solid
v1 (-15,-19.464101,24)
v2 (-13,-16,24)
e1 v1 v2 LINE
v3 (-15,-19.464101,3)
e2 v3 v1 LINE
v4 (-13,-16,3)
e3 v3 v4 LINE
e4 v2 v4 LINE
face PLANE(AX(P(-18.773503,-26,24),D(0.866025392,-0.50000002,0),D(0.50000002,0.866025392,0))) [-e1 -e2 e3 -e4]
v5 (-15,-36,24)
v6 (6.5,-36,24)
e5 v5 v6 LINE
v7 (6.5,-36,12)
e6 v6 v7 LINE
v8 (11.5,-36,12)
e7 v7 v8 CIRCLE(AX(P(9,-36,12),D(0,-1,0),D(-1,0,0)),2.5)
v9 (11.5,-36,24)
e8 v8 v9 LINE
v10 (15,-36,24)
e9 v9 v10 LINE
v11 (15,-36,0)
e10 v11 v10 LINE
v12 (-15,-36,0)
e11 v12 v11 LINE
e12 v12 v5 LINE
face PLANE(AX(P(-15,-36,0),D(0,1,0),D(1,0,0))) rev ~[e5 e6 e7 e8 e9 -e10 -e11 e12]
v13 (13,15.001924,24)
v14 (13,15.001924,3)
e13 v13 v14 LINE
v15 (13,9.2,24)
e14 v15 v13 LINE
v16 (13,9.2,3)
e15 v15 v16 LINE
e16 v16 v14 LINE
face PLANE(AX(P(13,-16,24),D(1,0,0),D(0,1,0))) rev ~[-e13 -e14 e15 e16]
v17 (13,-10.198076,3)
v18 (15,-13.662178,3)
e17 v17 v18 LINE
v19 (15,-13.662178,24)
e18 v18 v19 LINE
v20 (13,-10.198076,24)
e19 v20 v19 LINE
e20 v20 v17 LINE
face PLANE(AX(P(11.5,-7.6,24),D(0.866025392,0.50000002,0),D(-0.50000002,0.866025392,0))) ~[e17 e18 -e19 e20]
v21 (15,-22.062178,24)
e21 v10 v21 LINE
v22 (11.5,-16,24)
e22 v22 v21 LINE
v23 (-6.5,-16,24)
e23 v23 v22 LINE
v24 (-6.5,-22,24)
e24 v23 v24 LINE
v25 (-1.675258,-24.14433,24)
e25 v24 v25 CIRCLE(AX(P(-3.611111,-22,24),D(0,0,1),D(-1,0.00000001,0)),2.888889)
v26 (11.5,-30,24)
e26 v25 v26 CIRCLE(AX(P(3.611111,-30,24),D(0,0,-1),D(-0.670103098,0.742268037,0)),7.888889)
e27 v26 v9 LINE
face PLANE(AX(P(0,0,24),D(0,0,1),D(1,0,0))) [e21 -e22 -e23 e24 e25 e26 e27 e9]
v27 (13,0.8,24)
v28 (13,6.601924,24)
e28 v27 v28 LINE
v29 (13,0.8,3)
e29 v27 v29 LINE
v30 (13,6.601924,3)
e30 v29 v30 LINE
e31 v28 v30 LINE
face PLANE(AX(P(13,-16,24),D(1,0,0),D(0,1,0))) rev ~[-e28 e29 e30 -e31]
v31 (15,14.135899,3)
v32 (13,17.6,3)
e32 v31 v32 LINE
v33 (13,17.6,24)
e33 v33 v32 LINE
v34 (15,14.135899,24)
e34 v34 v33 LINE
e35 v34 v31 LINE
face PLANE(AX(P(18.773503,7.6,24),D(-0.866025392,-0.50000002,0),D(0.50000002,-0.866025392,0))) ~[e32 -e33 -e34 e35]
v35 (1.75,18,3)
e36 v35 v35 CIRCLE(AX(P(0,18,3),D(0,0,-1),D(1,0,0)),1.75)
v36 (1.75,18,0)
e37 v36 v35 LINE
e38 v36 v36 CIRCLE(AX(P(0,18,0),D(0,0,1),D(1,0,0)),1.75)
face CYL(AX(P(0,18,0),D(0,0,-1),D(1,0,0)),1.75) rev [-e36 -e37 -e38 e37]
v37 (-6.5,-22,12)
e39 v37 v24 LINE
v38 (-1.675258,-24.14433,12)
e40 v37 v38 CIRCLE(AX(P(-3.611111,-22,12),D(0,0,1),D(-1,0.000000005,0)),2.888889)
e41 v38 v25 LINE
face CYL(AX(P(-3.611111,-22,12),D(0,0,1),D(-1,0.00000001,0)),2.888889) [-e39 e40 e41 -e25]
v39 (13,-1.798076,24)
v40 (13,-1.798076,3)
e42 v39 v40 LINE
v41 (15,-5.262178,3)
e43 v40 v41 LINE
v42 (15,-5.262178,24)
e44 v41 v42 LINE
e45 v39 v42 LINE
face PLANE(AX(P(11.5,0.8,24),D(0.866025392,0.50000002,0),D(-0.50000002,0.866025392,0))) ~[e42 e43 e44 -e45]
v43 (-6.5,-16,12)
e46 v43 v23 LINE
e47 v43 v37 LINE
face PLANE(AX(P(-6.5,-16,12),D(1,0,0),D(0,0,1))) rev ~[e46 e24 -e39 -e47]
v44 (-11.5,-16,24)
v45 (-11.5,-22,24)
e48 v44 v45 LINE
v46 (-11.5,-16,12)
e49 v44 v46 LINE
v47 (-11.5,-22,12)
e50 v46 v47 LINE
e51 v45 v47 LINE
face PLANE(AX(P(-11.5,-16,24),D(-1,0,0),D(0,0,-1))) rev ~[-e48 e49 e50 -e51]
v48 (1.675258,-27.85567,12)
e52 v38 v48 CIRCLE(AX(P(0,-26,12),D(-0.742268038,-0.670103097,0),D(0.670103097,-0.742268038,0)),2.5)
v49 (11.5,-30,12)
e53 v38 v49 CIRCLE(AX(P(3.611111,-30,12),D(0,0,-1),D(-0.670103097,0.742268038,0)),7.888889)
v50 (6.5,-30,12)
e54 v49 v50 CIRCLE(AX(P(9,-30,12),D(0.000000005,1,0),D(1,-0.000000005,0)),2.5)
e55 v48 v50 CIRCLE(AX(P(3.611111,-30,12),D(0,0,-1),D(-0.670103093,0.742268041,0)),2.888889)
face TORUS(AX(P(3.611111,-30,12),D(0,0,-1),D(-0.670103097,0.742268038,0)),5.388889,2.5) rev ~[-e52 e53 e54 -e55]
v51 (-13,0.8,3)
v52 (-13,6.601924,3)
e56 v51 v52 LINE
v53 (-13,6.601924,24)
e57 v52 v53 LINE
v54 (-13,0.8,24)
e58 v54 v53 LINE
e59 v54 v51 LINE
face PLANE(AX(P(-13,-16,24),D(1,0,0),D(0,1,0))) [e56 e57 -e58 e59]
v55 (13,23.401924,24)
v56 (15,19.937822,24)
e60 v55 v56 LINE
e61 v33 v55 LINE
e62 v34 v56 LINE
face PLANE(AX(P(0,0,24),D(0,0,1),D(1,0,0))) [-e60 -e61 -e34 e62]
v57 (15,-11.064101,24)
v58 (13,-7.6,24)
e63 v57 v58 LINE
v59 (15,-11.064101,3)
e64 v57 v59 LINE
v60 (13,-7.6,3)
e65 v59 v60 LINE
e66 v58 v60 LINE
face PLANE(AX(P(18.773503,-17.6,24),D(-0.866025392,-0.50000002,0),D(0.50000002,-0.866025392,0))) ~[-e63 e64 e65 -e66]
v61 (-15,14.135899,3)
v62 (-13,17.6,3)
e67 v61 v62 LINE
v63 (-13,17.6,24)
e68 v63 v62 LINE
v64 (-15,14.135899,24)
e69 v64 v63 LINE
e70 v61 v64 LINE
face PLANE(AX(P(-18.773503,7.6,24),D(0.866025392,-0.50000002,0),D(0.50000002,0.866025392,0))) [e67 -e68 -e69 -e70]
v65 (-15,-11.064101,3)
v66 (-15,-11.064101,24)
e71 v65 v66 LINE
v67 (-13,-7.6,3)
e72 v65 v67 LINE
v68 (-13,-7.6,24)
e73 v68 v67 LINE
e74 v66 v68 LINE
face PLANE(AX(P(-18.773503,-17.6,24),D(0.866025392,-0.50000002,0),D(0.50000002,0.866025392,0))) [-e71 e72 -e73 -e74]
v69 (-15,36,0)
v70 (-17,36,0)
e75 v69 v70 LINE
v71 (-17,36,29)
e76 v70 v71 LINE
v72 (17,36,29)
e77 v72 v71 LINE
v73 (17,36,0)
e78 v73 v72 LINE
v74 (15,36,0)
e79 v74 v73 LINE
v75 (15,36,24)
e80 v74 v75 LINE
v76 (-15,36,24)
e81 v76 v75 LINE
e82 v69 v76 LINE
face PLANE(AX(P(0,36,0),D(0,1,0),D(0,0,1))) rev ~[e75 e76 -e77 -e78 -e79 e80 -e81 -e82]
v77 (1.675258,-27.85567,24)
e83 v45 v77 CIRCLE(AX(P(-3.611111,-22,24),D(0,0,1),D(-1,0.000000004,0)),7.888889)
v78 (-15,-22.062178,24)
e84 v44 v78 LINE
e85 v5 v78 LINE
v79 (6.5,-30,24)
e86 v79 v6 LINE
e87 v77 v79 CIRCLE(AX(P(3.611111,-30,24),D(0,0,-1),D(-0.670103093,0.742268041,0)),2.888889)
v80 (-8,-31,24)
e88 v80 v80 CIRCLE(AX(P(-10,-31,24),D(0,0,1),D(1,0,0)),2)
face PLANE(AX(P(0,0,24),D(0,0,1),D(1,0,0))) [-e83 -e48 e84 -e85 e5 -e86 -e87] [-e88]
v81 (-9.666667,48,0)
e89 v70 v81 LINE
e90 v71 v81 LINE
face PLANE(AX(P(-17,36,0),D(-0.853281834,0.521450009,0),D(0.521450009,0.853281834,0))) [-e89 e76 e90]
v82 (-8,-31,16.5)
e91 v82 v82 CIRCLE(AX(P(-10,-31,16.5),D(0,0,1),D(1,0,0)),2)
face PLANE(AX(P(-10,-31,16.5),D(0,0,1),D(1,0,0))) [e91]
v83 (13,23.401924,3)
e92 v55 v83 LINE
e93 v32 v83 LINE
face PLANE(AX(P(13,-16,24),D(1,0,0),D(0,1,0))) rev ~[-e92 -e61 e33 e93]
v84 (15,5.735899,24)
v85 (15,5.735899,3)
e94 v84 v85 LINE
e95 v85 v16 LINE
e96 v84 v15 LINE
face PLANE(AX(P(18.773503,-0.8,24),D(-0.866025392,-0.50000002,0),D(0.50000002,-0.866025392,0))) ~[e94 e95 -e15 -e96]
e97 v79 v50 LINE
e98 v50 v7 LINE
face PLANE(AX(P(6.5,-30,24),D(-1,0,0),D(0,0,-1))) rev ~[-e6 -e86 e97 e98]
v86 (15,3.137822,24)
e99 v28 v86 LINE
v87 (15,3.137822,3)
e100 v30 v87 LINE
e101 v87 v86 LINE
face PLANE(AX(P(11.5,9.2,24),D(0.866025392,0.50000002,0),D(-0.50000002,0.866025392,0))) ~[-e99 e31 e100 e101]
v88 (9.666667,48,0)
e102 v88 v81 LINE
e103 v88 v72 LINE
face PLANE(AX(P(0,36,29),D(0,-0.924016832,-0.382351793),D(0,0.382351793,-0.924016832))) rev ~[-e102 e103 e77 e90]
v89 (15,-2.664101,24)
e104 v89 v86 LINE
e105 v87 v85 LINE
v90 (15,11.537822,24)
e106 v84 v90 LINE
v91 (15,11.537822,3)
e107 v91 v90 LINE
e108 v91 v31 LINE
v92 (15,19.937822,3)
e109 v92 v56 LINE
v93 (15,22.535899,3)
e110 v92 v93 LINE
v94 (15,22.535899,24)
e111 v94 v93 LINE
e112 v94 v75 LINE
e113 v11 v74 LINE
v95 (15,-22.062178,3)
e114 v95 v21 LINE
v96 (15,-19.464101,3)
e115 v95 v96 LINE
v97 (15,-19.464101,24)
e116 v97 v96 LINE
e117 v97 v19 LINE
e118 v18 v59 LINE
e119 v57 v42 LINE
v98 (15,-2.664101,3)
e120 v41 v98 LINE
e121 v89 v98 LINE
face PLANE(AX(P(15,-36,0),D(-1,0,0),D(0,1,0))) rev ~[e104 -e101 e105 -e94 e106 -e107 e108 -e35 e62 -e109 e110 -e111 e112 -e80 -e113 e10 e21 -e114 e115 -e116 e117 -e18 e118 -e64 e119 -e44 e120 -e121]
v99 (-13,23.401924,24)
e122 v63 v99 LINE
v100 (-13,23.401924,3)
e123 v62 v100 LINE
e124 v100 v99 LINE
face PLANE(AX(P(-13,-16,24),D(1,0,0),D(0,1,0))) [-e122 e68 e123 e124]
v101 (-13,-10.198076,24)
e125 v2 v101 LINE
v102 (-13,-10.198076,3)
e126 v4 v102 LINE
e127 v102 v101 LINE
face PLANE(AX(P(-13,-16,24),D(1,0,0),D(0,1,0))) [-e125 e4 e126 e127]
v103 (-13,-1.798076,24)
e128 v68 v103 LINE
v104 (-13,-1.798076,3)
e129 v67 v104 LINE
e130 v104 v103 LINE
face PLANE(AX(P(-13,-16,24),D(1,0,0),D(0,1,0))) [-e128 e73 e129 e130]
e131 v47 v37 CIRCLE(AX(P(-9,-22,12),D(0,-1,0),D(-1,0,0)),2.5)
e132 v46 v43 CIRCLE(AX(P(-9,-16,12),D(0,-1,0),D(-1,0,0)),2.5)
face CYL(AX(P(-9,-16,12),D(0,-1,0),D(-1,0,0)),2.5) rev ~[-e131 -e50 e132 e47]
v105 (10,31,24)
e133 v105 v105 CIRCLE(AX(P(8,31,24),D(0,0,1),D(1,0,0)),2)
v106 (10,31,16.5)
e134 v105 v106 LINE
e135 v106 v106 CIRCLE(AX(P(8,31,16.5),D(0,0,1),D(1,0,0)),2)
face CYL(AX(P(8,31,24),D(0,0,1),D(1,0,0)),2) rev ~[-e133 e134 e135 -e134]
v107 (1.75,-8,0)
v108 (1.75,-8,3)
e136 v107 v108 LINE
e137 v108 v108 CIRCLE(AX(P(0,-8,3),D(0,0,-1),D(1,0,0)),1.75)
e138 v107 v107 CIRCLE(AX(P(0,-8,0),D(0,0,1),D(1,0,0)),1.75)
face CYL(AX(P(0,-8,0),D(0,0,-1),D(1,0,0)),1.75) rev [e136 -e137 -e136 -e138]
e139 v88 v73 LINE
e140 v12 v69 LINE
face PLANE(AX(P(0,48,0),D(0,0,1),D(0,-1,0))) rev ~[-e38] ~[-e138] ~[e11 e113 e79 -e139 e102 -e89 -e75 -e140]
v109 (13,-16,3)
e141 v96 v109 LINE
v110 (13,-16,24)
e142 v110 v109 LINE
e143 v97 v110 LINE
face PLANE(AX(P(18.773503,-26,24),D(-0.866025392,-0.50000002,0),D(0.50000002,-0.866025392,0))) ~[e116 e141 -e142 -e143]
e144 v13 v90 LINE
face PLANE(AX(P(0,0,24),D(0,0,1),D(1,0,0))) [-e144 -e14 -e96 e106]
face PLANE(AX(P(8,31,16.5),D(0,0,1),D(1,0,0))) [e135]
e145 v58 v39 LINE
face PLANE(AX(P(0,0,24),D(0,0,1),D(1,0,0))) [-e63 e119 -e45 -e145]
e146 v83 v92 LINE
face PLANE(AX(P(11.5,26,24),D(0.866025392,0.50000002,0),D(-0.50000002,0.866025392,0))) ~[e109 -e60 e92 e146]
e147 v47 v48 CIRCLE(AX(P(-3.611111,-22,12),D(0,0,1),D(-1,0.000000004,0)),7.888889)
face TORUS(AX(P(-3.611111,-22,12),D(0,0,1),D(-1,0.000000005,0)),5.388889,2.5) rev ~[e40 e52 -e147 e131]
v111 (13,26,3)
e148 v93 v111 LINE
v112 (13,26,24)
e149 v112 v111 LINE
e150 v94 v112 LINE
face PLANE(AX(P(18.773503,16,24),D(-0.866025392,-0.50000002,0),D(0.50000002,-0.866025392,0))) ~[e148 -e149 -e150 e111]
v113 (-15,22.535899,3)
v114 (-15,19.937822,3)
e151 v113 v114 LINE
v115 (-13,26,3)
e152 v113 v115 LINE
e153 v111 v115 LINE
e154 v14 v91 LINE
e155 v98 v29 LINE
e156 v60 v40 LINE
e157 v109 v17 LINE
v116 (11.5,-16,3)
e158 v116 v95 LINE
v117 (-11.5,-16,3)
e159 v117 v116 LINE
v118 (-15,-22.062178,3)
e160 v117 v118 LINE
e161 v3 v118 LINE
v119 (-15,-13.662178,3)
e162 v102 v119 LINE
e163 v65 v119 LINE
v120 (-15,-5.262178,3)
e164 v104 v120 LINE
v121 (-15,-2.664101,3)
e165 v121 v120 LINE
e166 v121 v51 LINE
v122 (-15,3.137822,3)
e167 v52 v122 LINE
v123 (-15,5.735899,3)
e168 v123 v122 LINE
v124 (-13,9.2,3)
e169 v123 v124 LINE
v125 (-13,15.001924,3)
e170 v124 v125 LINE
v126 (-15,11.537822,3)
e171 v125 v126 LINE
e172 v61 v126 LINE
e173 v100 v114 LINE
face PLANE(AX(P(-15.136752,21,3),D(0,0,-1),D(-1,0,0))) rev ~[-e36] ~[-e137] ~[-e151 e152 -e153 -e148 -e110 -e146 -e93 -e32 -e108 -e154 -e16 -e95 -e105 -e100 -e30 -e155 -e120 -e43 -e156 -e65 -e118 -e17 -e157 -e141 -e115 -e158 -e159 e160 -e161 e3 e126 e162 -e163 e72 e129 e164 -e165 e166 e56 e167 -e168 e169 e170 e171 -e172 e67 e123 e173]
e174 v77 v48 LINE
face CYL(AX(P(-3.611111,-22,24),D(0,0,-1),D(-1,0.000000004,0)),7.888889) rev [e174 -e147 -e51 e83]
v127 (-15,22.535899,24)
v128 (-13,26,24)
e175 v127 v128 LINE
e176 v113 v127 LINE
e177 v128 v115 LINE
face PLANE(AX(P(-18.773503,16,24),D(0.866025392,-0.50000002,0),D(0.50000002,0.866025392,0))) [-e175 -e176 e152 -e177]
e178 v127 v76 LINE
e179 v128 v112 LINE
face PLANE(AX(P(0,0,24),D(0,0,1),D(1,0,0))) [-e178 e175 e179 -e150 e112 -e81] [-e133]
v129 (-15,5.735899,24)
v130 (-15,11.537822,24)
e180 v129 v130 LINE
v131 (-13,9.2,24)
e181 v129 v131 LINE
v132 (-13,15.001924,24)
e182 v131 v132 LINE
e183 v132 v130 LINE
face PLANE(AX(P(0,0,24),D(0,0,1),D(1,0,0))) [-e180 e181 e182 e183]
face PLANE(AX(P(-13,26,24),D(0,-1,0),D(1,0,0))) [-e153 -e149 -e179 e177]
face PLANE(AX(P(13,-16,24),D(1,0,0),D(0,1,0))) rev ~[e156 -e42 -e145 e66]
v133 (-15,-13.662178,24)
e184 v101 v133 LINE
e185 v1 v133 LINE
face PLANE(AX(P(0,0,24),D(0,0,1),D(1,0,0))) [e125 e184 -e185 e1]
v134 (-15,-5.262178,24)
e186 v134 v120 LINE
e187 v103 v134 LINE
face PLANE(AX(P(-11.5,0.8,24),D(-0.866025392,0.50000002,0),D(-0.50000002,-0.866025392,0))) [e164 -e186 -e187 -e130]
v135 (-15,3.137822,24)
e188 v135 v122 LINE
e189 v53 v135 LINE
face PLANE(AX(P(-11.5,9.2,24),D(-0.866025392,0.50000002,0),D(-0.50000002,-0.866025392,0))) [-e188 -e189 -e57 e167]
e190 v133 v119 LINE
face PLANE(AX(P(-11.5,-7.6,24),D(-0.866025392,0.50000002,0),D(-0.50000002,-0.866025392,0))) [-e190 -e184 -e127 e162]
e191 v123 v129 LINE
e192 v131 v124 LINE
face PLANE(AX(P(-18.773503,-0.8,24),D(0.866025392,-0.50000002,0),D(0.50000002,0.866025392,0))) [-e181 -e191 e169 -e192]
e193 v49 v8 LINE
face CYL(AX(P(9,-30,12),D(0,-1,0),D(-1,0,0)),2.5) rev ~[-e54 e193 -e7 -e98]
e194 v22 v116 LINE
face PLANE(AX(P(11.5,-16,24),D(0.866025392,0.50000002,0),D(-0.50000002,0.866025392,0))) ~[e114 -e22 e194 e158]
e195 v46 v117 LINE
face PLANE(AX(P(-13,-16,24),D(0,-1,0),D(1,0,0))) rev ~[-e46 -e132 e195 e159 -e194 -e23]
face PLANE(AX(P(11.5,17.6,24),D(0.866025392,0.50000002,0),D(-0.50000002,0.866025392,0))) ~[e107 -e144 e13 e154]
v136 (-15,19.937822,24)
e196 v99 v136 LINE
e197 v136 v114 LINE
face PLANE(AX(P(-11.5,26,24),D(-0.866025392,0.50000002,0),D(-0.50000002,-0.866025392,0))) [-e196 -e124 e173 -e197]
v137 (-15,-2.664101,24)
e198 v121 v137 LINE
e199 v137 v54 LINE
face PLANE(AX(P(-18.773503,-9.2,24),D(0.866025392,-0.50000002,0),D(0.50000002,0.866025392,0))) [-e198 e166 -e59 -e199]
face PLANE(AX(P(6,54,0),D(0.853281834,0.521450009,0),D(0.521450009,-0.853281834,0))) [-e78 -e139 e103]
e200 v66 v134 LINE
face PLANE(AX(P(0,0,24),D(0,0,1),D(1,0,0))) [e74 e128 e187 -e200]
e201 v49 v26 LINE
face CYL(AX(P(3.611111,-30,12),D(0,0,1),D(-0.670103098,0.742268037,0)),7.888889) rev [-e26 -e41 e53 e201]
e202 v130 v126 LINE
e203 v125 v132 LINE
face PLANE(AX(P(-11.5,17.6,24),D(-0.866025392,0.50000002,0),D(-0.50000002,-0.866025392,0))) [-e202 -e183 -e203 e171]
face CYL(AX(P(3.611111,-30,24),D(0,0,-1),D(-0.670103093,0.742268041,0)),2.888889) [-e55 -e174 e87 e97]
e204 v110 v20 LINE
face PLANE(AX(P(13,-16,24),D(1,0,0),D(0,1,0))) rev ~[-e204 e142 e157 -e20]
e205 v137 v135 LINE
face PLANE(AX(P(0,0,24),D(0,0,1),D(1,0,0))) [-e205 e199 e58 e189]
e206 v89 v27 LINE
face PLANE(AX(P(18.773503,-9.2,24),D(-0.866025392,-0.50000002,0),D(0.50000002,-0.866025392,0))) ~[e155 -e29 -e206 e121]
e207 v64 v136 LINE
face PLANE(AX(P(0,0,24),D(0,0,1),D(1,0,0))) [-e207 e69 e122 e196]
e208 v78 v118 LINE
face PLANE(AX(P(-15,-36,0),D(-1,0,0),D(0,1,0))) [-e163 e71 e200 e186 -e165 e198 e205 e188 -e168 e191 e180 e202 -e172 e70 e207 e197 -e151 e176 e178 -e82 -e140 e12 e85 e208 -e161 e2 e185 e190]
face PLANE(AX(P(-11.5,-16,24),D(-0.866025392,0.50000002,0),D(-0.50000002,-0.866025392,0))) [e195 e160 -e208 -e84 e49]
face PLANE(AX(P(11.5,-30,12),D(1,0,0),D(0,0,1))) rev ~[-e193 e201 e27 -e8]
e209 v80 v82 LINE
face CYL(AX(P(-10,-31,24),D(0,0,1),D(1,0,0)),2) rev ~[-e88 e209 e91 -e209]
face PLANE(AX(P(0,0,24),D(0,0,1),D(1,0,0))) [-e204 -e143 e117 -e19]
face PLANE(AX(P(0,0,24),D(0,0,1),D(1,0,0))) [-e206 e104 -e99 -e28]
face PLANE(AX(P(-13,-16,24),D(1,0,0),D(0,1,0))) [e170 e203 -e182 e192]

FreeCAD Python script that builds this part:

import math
import FreeCAD as App
import Part
import Sketcher
from FreeCAD import Vector
Q = App.Units.Quantity

doc = App.newDocument("Part")
body = doc.addObject("PartDesign::Body", "Body")

sketch1 = doc.addObject("Sketcher::SketchObject", "Sketch")
body.addObject(sketch1)
sketch1.AttachmentSupport = (doc.XY_Plane, [""])
sketch1.MapMode = "FlatFace"
sketch1.addGeometry(Part.LineSegment(Vector(-15, 36, 0), Vector(-15, -36, 0)), False)
sketch1.addGeometry(Part.LineSegment(Vector(-15, -36, 0), Vector(15, -36, 0)), False)
sketch1.addGeometry(Part.LineSegment(Vector(15, -36, 0), Vector(15, 36, 0)), False)
sketch1.addGeometry(Part.LineSegment(Vector(15, 36, 0), Vector(-15, 36, 0)), False)
sketch1.addGeometry(Part.Circle(Vector(0, -8, 0), Vector(0, 0, 1), 1.8), False)
sketch1.addGeometry(Part.Circle(Vector(0, 18, 0), Vector(0, 0, 1), 1.8), False)
sketch1.addConstraint(Sketcher.Constraint("Coincident", 0, 2, 1, 1))
sketch1.addConstraint(Sketcher.Constraint("Coincident", 1, 2, 2, 1))
sketch1.addConstraint(Sketcher.Constraint("Coincident", 2, 2, 3, 1))
sketch1.addConstraint(Sketcher.Constraint("Coincident", 3, 2, 0, 1))
sketch1.addConstraint(Sketcher.Constraint("Vertical", 0))
sketch1.addConstraint(Sketcher.Constraint("Horizontal", 1))
sketch1.addConstraint(Sketcher.Constraint("Vertical", 2))
sketch1.addConstraint(Sketcher.Constraint("Horizontal", 3))
sketch1.addConstraint(Sketcher.Constraint("Equal", 4, 5))
sketch1.addConstraint(Sketcher.Constraint("Symmetric", 0, 2, 2, 2, -1, 1))
sketch1.addConstraint(Sketcher.Constraint("PointOnObject", 4, 3, -2))
sketch1.addConstraint(Sketcher.Constraint("PointOnObject", 5, 3, -2))
sketch1.addConstraint(Sketcher.Constraint("Diameter", 4, Q("3.5 mm")))
sketch1.addConstraint(Sketcher.Constraint("DistanceX", 1, 1, 1, 2, Q("30 mm")))
sketch1.addConstraint(Sketcher.Constraint("DistanceY", 0, 2, 0, 1, Q("72 mm")))
sketch1.addConstraint(Sketcher.Constraint("DistanceY", 4, 3, -1, 1, Q("8 mm")))
sketch1.addConstraint(Sketcher.Constraint("DistanceY", -1, 1, 5, 3, Q("18 mm")))
pad1 = doc.addObject("PartDesign::Pad", "Pad")
body.addObject(pad1)
pad1.Profile = sketch1
pad1.Length = 24

sketch2 = doc.addObject("Sketcher::SketchObject", "Sketch001")
body.addObject(sketch2)
sketch2.AttachmentSupport = (doc.XY_Plane, [""])
sketch2.MapMode = "FlatFace"
sketch2.AttachmentOffset = App.Placement(Vector(0, 0, 24), App.Rotation())
sketch2.addGeometry(Part.LineSegment(Vector(-13, 26, 0), Vector(-13, -16, 0)), False)
sketch2.addGeometry(Part.LineSegment(Vector(-13, -16, 0), Vector(13, -16, 0)), False)
sketch2.addGeometry(Part.LineSegment(Vector(13, -16, 0), Vector(13, 26, 0)), False)
sketch2.addGeometry(Part.LineSegment(Vector(13, 26, 0), Vector(-13, 26, 0)), False)
sketch2.addConstraint(Sketcher.Constraint("Coincident", 0, 2, 1, 1))
sketch2.addConstraint(Sketcher.Constraint("Coincident", 1, 2, 2, 1))
sketch2.addConstraint(Sketcher.Constraint("Coincident", 2, 2, 3, 1))
sketch2.addConstraint(Sketcher.Constraint("Coincident", 3, 2, 0, 1))
sketch2.addConstraint(Sketcher.Constraint("Vertical", 0))
sketch2.addConstraint(Sketcher.Constraint("Horizontal", 1))
sketch2.addConstraint(Sketcher.Constraint("Vertical", 2))
sketch2.addConstraint(Sketcher.Constraint("Horizontal", 3))
sketch2.addConstraint(Sketcher.Constraint("DistanceX", 1, 1, 1, 2, Q("26 mm")))
sketch2.addConstraint(Sketcher.Constraint("DistanceY", 0, 2, 0, 1, Q("42 mm")))
sketch2.addConstraint(Sketcher.Constraint("DistanceX", 0, 2, -1, 1, Q("13 mm")))
sketch2.addConstraint(Sketcher.Constraint("DistanceY", 0, 2, -1, 1, Q("16 mm")))
pocket1 = doc.addObject("PartDesign::Pocket", "Pocket")
body.addObject(pocket1)
pocket1.Profile = sketch2
pocket1.Length = 21

sketch3 = doc.addObject("Sketcher::SketchObject", "Sketch002")
body.addObject(sketch3)
sketch3.AttachmentSupport = (doc.XY_Plane, [""])
sketch3.MapMode = "FlatFace"
sketch3.AttachmentOffset = App.Placement(Vector(0, 0, 24), App.Rotation())
sketch3.addGeometry(Part.LineSegment(Vector(-13, 26, 0), Vector(-18.8, 16, 0)), False)
sketch3.addGeometry(Part.LineSegment(Vector(-18.8, 16, 0), Vector(-17.3, 16, 0)), False)
sketch3.addGeometry(Part.LineSegment(Vector(-17.3, 16, 0), Vector(-11.5, 26, 0)), False)
sketch3.addGeometry(Part.LineSegment(Vector(-11.5, 26, 0), Vector(-13, 26, 0)), False)
sketch3.addConstraint(Sketcher.Constraint("Coincident", 0, 2, 1, 1))
sketch3.addConstraint(Sketcher.Constraint("Coincident", 1, 2, 2, 1))
sketch3.addConstraint(Sketcher.Constraint("Coincident", 2, 2, 3, 1))
sketch3.addConstraint(Sketcher.Constraint("Coincident", 3, 2, 0, 1))
sketch3.addConstraint(Sketcher.Constraint("Horizontal", 1))
sketch3.addConstraint(Sketcher.Constraint("Horizontal", 3))
sketch3.addConstraint(Sketcher.Constraint("Parallel", 0, 2))
sketch3.addConstraint(Sketcher.Constraint("Angle", 0, Q("-120.000001 deg")))
sketch3.addConstraint(Sketcher.Constraint("DistanceX", 1, 1, 1, 2, Q("1.5 mm")))
sketch3.addConstraint(Sketcher.Constraint("DistanceY", -1, 1, 0, 2, Q("16 mm")))
sketch3.addConstraint(Sketcher.Constraint("DistanceY", -1, 1, 2, 2, Q("26 mm")))
sketch3.addConstraint(Sketcher.Constraint("DistanceX", 3, 2, -1, 1, Q("13 mm")))
pocket2 = doc.addObject("PartDesign::Pocket", "Pocket001")
body.addObject(pocket2)
pocket2.Profile = sketch3
pocket2.Length = 21

sketch4 = doc.addObject("Sketcher::SketchObject", "Sketch003")
body.addObject(sketch4)
sketch4.AttachmentSupport = (doc.XY_Plane, [""])
sketch4.MapMode = "FlatFace"
sketch4.AttachmentOffset = App.Placement(Vector(0, 0, 24), App.Rotation())
sketch4.addGeometry(Part.LineSegment(Vector(-13, 17.6, 0), Vector(-18.8, 7.6, 0)), False)
sketch4.addGeometry(Part.LineSegment(Vector(-18.8, 7.6, 0), Vector(-17.3, 7.6, 0)), False)
sketch4.addGeometry(Part.LineSegment(Vector(-17.3, 7.6, 0), Vector(-11.5, 17.6, 0)), False)
sketch4.addGeometry(Part.LineSegment(Vector(-11.5, 17.6, 0), Vector(-13, 17.6, 0)), False)
sketch4.addConstraint(Sketcher.Constraint("Coincident", 0, 2, 1, 1))
sketch4.addConstraint(Sketcher.Constraint("Coincident", 1, 2, 2, 1))
sketch4.addConstraint(Sketcher.Constraint("Coincident", 2, 2, 3, 1))
sketch4.addConstraint(Sketcher.Constraint("Coincident", 3, 2, 0, 1))
sketch4.addConstraint(Sketcher.Constraint("Horizontal", 1))
sketch4.addConstraint(Sketcher.Constraint("Horizontal", 3))
sketch4.addConstraint(Sketcher.Constraint("Parallel", 0, 2))
sketch4.addConstraint(Sketcher.Constraint("Angle", 0, Q("-120.000001 deg")))
sketch4.addConstraint(Sketcher.Constraint("DistanceX", 1, 1, 1, 2, Q("1.5 mm")))
sketch4.addConstraint(Sketcher.Constraint("DistanceX", 3, 2, -1, 1, Q("13 mm")))
sketch4.addConstraint(Sketcher.Constraint("DistanceY", 1, 2, 2, 2, Q("10 mm")))
sketch4.addConstraint(Sketcher.Constraint("DistanceY", -1, 1, 0, 2, Q("7.6 mm")))
pocket3 = doc.addObject("PartDesign::Pocket", "Pocket002")
body.addObject(pocket3)
pocket3.Profile = sketch4
pocket3.Length = 21

sketch5 = doc.addObject("Sketcher::SketchObject", "Sketch004")
body.addObject(sketch5)
sketch5.AttachmentSupport = (doc.XY_Plane, [""])
sketch5.MapMode = "FlatFace"
sketch5.AttachmentOffset = App.Placement(Vector(0, 0, 24), App.Rotation())
sketch5.addGeometry(Part.LineSegment(Vector(-13, 9.2, 0), Vector(-18.773503, -0.8, 0)), False)
sketch5.addGeometry(Part.LineSegment(Vector(-18.773503, -0.8, 0), Vector(-17.273503, -0.8, 0)), False)
sketch5.addGeometry(Part.LineSegment(Vector(-17.273503, -0.8, 0), Vector(-11.5, 9.2, 0)), False)
sketch5.addGeometry(Part.LineSegment(Vector(-11.5, 9.2, 0), Vector(-13, 9.2, 0)), False)
sketch5.addConstraint(Sketcher.Constraint("Coincident", 0, 2, 1, 1))
sketch5.addConstraint(Sketcher.Constraint("Coincident", 1, 2, 2, 1))
sketch5.addConstraint(Sketcher.Constraint("Coincident", 2, 2, 3, 1))
sketch5.addConstraint(Sketcher.Constraint("Coincident", 3, 2, 0, 1))
sketch5.addConstraint(Sketcher.Constraint("Horizontal", 1))
sketch5.addConstraint(Sketcher.Constraint("Horizontal", 3))
sketch5.addConstraint(Sketcher.Constraint("Parallel", 0, 2))
sketch5.addConstraint(Sketcher.Constraint("Angle", 0, Q("-120.000001 deg")))
sketch5.addConstraint(Sketcher.Constraint("DistanceX", 1, 1, 1, 2, Q("1.5 mm")))
sketch5.addConstraint(Sketcher.Constraint("DistanceX", 3, 2, -1, 1, Q("13 mm")))
sketch5.addConstraint(Sketcher.Constraint("DistanceY", 1, 2, 2, 2, Q("10 mm")))
sketch5.addConstraint(Sketcher.Constraint("DistanceY", 0, 2, -1, 1, Q("0.8 mm")))
pocket4 = doc.addObject("PartDesign::Pocket", "Pocket003")
body.addObject(pocket4)
pocket4.Profile = sketch5
pocket4.Length = 21

sketch6 = doc.addObject("Sketcher::SketchObject", "Sketch005")
body.addObject(sketch6)
sketch6.AttachmentSupport = (doc.XY_Plane, [""])
sketch6.MapMode = "FlatFace"
sketch6.AttachmentOffset = App.Placement(Vector(0, 0, 24), App.Rotation())
sketch6.addGeometry(Part.LineSegment(Vector(-13, 0.8, 0), Vector(-18.8, -9.2, 0)), False)
sketch6.addGeometry(Part.LineSegment(Vector(-18.8, -9.2, 0), Vector(-17.3, -9.2, 0)), False)
sketch6.addGeometry(Part.LineSegment(Vector(-17.3, -9.2, 0), Vector(-11.5, 0.8, 0)), False)
sketch6.addGeometry(Part.LineSegment(Vector(-11.5, 0.8, 0), Vector(-13, 0.8, 0)), False)
sketch6.addConstraint(Sketcher.Constraint("Coincident", 0, 2, 1, 1))
sketch6.addConstraint(Sketcher.Constraint("Coincident", 1, 2, 2, 1))
sketch6.addConstraint(Sketcher.Constraint("Coincident", 2, 2, 3, 1))
sketch6.addConstraint(Sketcher.Constraint("Coincident", 3, 2, 0, 1))
sketch6.addConstraint(Sketcher.Constraint("Horizontal", 1))
sketch6.addConstraint(Sketcher.Constraint("Horizontal", 3))
sketch6.addConstraint(Sketcher.Constraint("Parallel", 0, 2))
sketch6.addConstraint(Sketcher.Constraint("Angle", 0, Q("-120.000001 deg")))
sketch6.addConstraint(Sketcher.Constraint("DistanceX", 1, 1, 1, 2, Q("1.5 mm")))
sketch6.addConstraint(Sketcher.Constraint("DistanceX", 3, 2, -1, 1, Q("13 mm")))
sketch6.addConstraint(Sketcher.Constraint("DistanceY", 1, 2, 2, 2, Q("10 mm")))
sketch6.addConstraint(Sketcher.Constraint("DistanceY", 0, 2, -1, 1, Q("9.2 mm")))
pocket5 = doc.addObject("PartDesign::Pocket", "Pocket004")
body.addObject(pocket5)
pocket5.Profile = sketch6
pocket5.Length = 21

sketch7 = doc.addObject("Sketcher::SketchObject", "Sketch006")
body.addObject(sketch7)
sketch7.AttachmentSupport = (doc.XY_Plane, [""])
sketch7.MapMode = "FlatFace"
sketch7.AttachmentOffset = App.Placement(Vector(0, 0, 24), App.Rotation())
sketch7.addGeometry(Part.LineSegment(Vector(-13, -7.6, 0), Vector(-18.8, -17.6, 0)), False)
sketch7.addGeometry(Part.LineSegment(Vector(-18.8, -17.6, 0), Vector(-17.3, -17.6, 0)), False)
sketch7.addGeometry(Part.LineSegment(Vector(-17.3, -17.6, 0), Vector(-11.5, -7.6, 0)), False)
sketch7.addGeometry(Part.LineSegment(Vector(-11.5, -7.6, 0), Vector(-13, -7.6, 0)), False)
sketch7.addConstraint(Sketcher.Constraint("Coincident", 0, 2, 1, 1))
sketch7.addConstraint(Sketcher.Constraint("Coincident", 1, 2, 2, 1))
sketch7.addConstraint(Sketcher.Constraint("Coincident", 2, 2, 3, 1))
sketch7.addConstraint(Sketcher.Constraint("Coincident", 3, 2, 0, 1))
sketch7.addConstraint(Sketcher.Constraint("Horizontal", 1))
sketch7.addConstraint(Sketcher.Constraint("Horizontal", 3))
sketch7.addConstraint(Sketcher.Constraint("Parallel", 0, 2))
sketch7.addConstraint(Sketcher.Constraint("Angle", 0, Q("-120.000001 deg")))
sketch7.addConstraint(Sketcher.Constraint("DistanceX", 1, 1, 1, 2, Q("1.5 mm")))
sketch7.addConstraint(Sketcher.Constraint("DistanceX", 3, 2, -1, 1, Q("13 mm")))
sketch7.addConstraint(Sketcher.Constraint("DistanceY", 1, 2, 2, 2, Q("10 mm")))
sketch7.addConstraint(Sketcher.Constraint("DistanceY", 0, 2, -1, 1, Q("17.6 mm")))
pocket6 = doc.addObject("PartDesign::Pocket", "Pocket005")
body.addObject(pocket6)
pocket6.Profile = sketch7
pocket6.Length = 21

sketch8 = doc.addObject("Sketcher::SketchObject", "Sketch007")
body.addObject(sketch8)
sketch8.AttachmentSupport = (doc.XY_Plane, [""])
sketch8.MapMode = "FlatFace"
sketch8.AttachmentOffset = App.Placement(Vector(0, 0, 24), App.Rotation())
sketch8.addGeometry(Part.LineSegment(Vector(-13, -16, 0), Vector(-18.8, -26, 0)), False)
sketch8.addGeometry(Part.LineSegment(Vector(-18.8, -26, 0), Vector(-17.3, -26, 0)), False)
sketch8.addGeometry(Part.LineSegment(Vector(-17.3, -26, 0), Vector(-11.5, -16, 0)), False)
sketch8.addGeometry(Part.LineSegment(Vector(-11.5, -16, 0), Vector(-13, -16, 0)), False)
sketch8.addConstraint(Sketcher.Constraint("Coincident", 0, 2, 1, 1))
sketch8.addConstraint(Sketcher.Constraint("Coincident", 1, 2, 2, 1))
sketch8.addConstraint(Sketcher.Constraint("Coincident", 2, 2, 3, 1))
sketch8.addConstraint(Sketcher.Constraint("Coincident", 3, 2, 0, 1))
sketch8.addConstraint(Sketcher.Constraint("Horizontal", 1))
sketch8.addConstraint(Sketcher.Constraint("Horizontal", 3))
sketch8.addConstraint(Sketcher.Constraint("Parallel", 0, 2))
sketch8.addConstraint(Sketcher.Constraint("Angle", 0, Q("-120.000001 deg")))
sketch8.addConstraint(Sketcher.Constraint("DistanceX", 1, 1, 1, 2, Q("1.5 mm")))
sketch8.addConstraint(Sketcher.Constraint("DistanceY", 0, 2, -1, 1, Q("26 mm")))
sketch8.addConstraint(Sketcher.Constraint("DistanceY", 2, 2, -1, 1, Q("16 mm")))
sketch8.addConstraint(Sketcher.Constraint("DistanceX", 3, 2, -1, 1, Q("13 mm")))
pocket7 = doc.addObject("PartDesign::Pocket", "Pocket006")
body.addObject(pocket7)
pocket7.Profile = sketch8
pocket7.Length = 21
doc.recompute()

mirrored = doc.addObject("PartDesign::Mirrored", "Mirrored")
body.addObject(mirrored)
mirrored.Originals = [pocket2, pocket3, pocket4, pocket5, pocket6, pocket7]
mirrored.MirrorPlane = (doc.YZ_Plane, [""])
body.Tip = mirrored

sketch9 = doc.addObject("Sketcher::SketchObject", "Sketch008")
body.addObject(sketch9)
sketch9.AttachmentSupport = (doc.XZ_Plane, [""])
sketch9.MapMode = "FlatFace"
sketch9.AttachmentOffset = App.Placement(Vector(0, 0, 36), App.Rotation())
sketch9.addGeometry(Part.LineSegment(Vector(6.5, 24, 0), Vector(6.5, 12, 0)), False)
sketch9.addGeometry(Part.ArcOfCircle(Part.Circle(Vector(9, 12, 0), Vector(0, 0, 1), 2.5), math.radians(180), math.radians(360)), False)
sketch9.addGeometry(Part.LineSegment(Vector(11.5, 12, 0), Vector(11.5, 24, 0)), False)
sketch9.addGeometry(Part.LineSegment(Vector(11.5, 24, 0), Vector(6.5, 24, 0)), False)
sketch9.addConstraint(Sketcher.Constraint("Tangent", 0, 2, 1, 1))
sketch9.addConstraint(Sketcher.Constraint("Tangent", 1, 2, 2, 1))
sketch9.addConstraint(Sketcher.Constraint("Coincident", 2, 2, 3, 1))
sketch9.addConstraint(Sketcher.Constraint("Coincident", 3, 2, 0, 1))
sketch9.addConstraint(Sketcher.Constraint("Vertical", 0))
sketch9.addConstraint(Sketcher.Constraint("Vertical", 2))
sketch9.addConstraint(Sketcher.Constraint("Horizontal", 3))
sketch9.addConstraint(Sketcher.Constraint("Radius", 1, Q("2.5 mm")))
sketch9.addConstraint(Sketcher.Constraint("DistanceY", 0, 2, 0, 1, Q("12 mm")))
sketch9.addConstraint(Sketcher.Constraint("DistanceX", -1, 1, 1, 3, Q("9 mm")))
sketch9.addConstraint(Sketcher.Constraint("DistanceY", -1, 1, 1, 3, Q("12 mm")))

sketch10 = doc.addObject("Sketcher::SketchObject", "Sketch009")
body.addObject(sketch10)
sketch10.AttachmentSupport = (doc.XY_Plane, [""])
sketch10.MapMode = "FlatFace"
sketch10.AttachmentOffset = App.Placement(Vector(0, 0, 24), App.Rotation())
sketch10.addGeometry(Part.LineSegment(Vector(-9, -16, 0), Vector(-9, -22, 0)), False)
sketch10.addGeometry(Part.ArcOfCircle(Part.Circle(Vector(-4, -22, 0), Vector(0, 0, 1), 5), math.radians(180), math.radians(312)), False)
sketch10.addGeometry(Part.ArcOfCircle(Part.Circle(Vector(4, -30, 0), Vector(0, 0, 1), 5), math.radians(0), math.radians(132)), False)
sketch10.addGeometry(Part.LineSegment(Vector(9, -30, 0), Vector(9, -36, 0)), False)
sketch10.addConstraint(Sketcher.Constraint("Tangent", 0, 2, 1, 1))
sketch10.addConstraint(Sketcher.Constraint("Tangent", 1, 2, 2, 2))
sketch10.addConstraint(Sketcher.Constraint("Tangent", 2, 1, 3, 1))
sketch10.addConstraint(Sketcher.Constraint("Vertical", 0))
sketch10.addConstraint(Sketcher.Constraint("Vertical", 3))
sketch10.addConstraint(Sketcher.Constraint("Equal", 1, 2))
sketch10.addConstraint(Sketcher.Constraint("PointOnObject", 1, 2, -2))
sketch10.addConstraint(Sketcher.Constraint("Equal", 0, 3))
sketch10.addConstraint(Sketcher.Constraint("DistanceY", 0, 2, 0, 1, Q("6 mm")))
sketch10.addConstraint(Sketcher.Constraint("DistanceY", 1, 3, -1, 1, Q("22 mm")))
sketch10.addConstraint(Sketcher.Constraint("DistanceY", 2, 3, -1, 1, Q("30 mm")))
sketch10.addConstraint(Sketcher.Constraint("DistanceX", 0, 1, -1, 1, Q("9 mm")))
doc.recompute()

subtractivepipe = doc.addObject("PartDesign::SubtractivePipe", "SubtractivePipe")
body.addObject(subtractivepipe)
subtractivepipe.Profile = sketch9
subtractivepipe.Spine = (sketch10, ["Edge1", "Edge2", "Edge3", "Edge4"])

sketch11 = doc.addObject("Sketcher::SketchObject", "Sketch010")
body.addObject(sketch11)
sketch11.AttachmentSupport = (doc.XY_Plane, [""])
sketch11.MapMode = "FlatFace"
sketch11.AttachmentOffset = App.Placement(Vector(0, 0, 24), App.Rotation())
sketch11.addGeometry(Part.Circle(Vector(-10, -31, 0), Vector(0, 0, 1), 2), False)
sketch11.addGeometry(Part.Circle(Vector(8, 31, 0), Vector(0, 0, 1), 2), False)
sketch11.addConstraint(Sketcher.Constraint("Equal", 0, 1))
sketch11.addConstraint(Sketcher.Constraint("Diameter", 0, Q("4 mm")))
sketch11.addConstraint(Sketcher.Constraint("DistanceX", 0, 3, -1, 1, Q("10 mm")))
sketch11.addConstraint(Sketcher.Constraint("DistanceY", 0, 3, -1, 1, Q("31 mm")))
sketch11.addConstraint(Sketcher.Constraint("DistanceX", -1, 1, 1, 3, Q("8 mm")))
sketch11.addConstraint(Sketcher.Constraint("DistanceY", -1, 1, 1, 3, Q("31 mm")))
pocket8 = doc.addObject("PartDesign::Pocket", "Pocket007")
body.addObject(pocket8)
pocket8.Profile = sketch11
pocket8.Length = 7.5

sketch12 = doc.addObject("Sketcher::SketchObject", "Sketch011")
body.addObject(sketch12)
sketch12.AttachmentSupport = (doc.YZ_Plane, [""])
sketch12.MapMode = "FlatFace"
sketch12.addGeometry(Part.LineSegment(Vector(36, 29, 0), Vector(36, 0, 0)), False)
sketch12.addGeometry(Part.LineSegment(Vector(36, 0, 0), Vector(48, 0, 0)), False)
sketch12.addGeometry(Part.LineSegment(Vector(48, 0, 0), Vector(36, 29, 0)), False)
sketch12.addConstraint(Sketcher.Constraint("Coincident", 0, 2, 1, 1))
sketch12.addConstraint(Sketcher.Constraint("Coincident", 1, 2, 2, 1))
sketch12.addConstraint(Sketcher.Constraint("Coincident", 2, 2, 0, 1))
sketch12.addConstraint(Sketcher.Constraint("Vertical", 0))
sketch12.addConstraint(Sketcher.Constraint("Horizontal", 1))
sketch12.addConstraint(Sketcher.Constraint("PointOnObject", 0, 2, -1))
sketch12.addConstraint(Sketcher.Constraint("DistanceX", 1, 1, 1, 2, Q("12 mm")))
sketch12.addConstraint(Sketcher.Constraint("DistanceY", 0, 2, 0, 1, Q("29 mm")))
sketch12.addConstraint(Sketcher.Constraint("DistanceX", -1, 1, 0, 2, Q("36 mm")))
pad2 = doc.addObject("PartDesign::Pad", "Pad001")
body.addObject(pad2)
pad2.Profile = sketch12
pad2.Type = "TwoLengths"
pad2.Length = 17
pad2.Length2 = 17

sketch13 = doc.addObject("Sketcher::SketchObject", "Sketch012")
body.addObject(sketch13)
sketch13.AttachmentSupport = (doc.XY_Plane, [""])
sketch13.MapMode = "FlatFace"
sketch13.addGeometry(Part.LineSegment(Vector(-17, 36, 0), Vector(-6, 54, 0)), False)
sketch13.addGeometry(Part.LineSegment(Vector(-6, 54, 0), Vector(6, 54, 0)), False)
sketch13.addGeometry(Part.LineSegment(Vector(6, 54, 0), Vector(17, 36, 0)), False)
sketch13.addGeometry(Part.LineSegment(Vector(17, 36, 0), Vector(17, 56, 0)), False)
sketch13.addGeometry(Part.LineSegment(Vector(17, 56, 0), Vector(-17, 56, 0)), False)
sketch13.addGeometry(Part.LineSegment(Vector(-17, 56, 0), Vector(-17, 36, 0)), False)
sketch13.addConstraint(Sketcher.Constraint("Coincident", 0, 2, 1, 1))
sketch13.addConstraint(Sketcher.Constraint("Coincident", 1, 2, 2, 1))
sketch13.addConstraint(Sketcher.Constraint("Coincident", 2, 2, 3, 1))
sketch13.addConstraint(Sketcher.Constraint("Coincident", 3, 2, 4, 1))
sketch13.addConstraint(Sketcher.Constraint("Coincident", 4, 2, 5, 1))
sketch13.addConstraint(Sketcher.Constraint("Coincident", 5, 2, 0, 1))
sketch13.addConstraint(Sketcher.Constraint("Horizontal", 1))
sketch13.addConstraint(Sketcher.Constraint("Vertical", 3))
sketch13.addConstraint(Sketcher.Constraint("Horizontal", 4))
sketch13.addConstraint(Sketcher.Constraint("Vertical", 5))
sketch13.addConstraint(Sketcher.Constraint("Symmetric", 2, 2, 5, 2, -2))
sketch13.addConstraint(Sketcher.Constraint("Equal", 0, 2))
sketch13.addConstraint(Sketcher.Constraint("DistanceX", 1, 1, 1, 2, Q("12 mm")))
sketch13.addConstraint(Sketcher.Constraint("DistanceX", 4, 2, 4, 1, Q("34 mm")))
sketch13.addConstraint(Sketcher.Constraint("DistanceY", 3, 1, 3, 2, Q("20 mm")))
sketch13.addConstraint(Sketcher.Constraint("DistanceY", -1, 1, 0, 2, Q("54 mm")))
sketch13.addConstraint(Sketcher.Constraint("DistanceY", -1, 1, 2, 2, Q("36 mm")))
pocket9 = doc.addObject("PartDesign::Pocket", "Pocket008")
body.addObject(pocket9)
pocket9.Profile = sketch13
pocket9.Type = "ThroughAll"
pocket9.Reversed = True

doc.recompute()
